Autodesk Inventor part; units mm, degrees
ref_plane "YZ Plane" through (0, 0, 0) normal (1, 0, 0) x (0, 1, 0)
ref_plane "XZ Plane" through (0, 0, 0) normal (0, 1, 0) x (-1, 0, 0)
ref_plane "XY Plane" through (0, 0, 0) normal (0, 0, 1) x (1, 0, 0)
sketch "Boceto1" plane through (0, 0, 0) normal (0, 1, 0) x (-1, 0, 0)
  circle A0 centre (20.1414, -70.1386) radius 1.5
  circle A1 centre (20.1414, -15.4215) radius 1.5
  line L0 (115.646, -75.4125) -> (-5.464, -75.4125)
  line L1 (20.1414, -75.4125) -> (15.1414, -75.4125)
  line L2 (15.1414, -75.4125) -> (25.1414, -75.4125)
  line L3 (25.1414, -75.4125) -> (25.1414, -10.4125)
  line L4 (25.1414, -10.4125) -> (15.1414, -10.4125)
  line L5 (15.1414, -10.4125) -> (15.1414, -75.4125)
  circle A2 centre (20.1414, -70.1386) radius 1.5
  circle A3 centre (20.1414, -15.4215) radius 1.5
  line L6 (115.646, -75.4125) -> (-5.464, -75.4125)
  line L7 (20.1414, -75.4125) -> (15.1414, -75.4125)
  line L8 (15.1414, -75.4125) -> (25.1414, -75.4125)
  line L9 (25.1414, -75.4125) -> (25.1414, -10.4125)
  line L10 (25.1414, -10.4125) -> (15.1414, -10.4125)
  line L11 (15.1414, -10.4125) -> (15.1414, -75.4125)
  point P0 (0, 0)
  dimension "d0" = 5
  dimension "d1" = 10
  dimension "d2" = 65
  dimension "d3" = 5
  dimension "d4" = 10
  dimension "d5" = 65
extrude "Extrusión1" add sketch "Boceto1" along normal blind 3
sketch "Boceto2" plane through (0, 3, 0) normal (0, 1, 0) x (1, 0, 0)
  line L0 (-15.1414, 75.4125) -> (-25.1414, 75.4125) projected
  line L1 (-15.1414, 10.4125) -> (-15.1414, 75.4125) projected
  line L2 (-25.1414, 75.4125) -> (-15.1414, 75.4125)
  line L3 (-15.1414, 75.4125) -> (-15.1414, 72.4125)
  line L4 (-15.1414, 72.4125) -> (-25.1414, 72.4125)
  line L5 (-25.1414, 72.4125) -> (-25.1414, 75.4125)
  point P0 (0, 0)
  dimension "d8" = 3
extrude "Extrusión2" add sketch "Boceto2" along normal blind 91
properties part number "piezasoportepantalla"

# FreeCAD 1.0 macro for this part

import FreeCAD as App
import Part
import Sketcher
from FreeCAD import Vector
Q = App.Units.Quantity

doc = App.newDocument("Part")
body = doc.addObject("PartDesign::Body", "Body")

# Sketch on XZ plane
sketch1 = body.newObject("Sketcher::SketchObject", "Sketch")
sketch1.AttachmentSupport = (doc.getObject("XZ_Plane"), [""])
sketch1.MapMode = "FlatFace"
sketch1.addGeometry([
    Part.LineSegment(Vector(-15.1, -75.4, 0), Vector(-25.1, -75.4, 0)),  # 0
    Part.LineSegment(Vector(-25.1, -75.4, 0), Vector(-25.1, -10.4, 0)),  # 1
    Part.LineSegment(Vector(-25.1, -10.4, 0), Vector(-15.1, -10.4, 0)),  # 2
    Part.LineSegment(Vector(-15.1, -10.4, 0), Vector(-15.1, -75.4, 0)),  # 3
    Part.Circle(Vector(-20.1, -70.1, 0), Vector(0, 0, 1), 1.5),  # 4
    Part.Circle(Vector(-20.1, -15.4, 0), Vector(0, 0, 1), 1.5),  # 5
], False)
sketch1.addConstraint([
    Sketcher.Constraint("Coincident", 0, 2, 1, 1),
    Sketcher.Constraint("Coincident", 1, 2, 2, 1),
    Sketcher.Constraint("Coincident", 2, 2, 3, 1),
    Sketcher.Constraint("Coincident", 3, 2, 0, 1),
    Sketcher.Constraint("Horizontal", 0),
    Sketcher.Constraint("Vertical", 1),
    Sketcher.Constraint("Horizontal", 2),
    Sketcher.Constraint("Vertical", 3),
    Sketcher.Constraint("Equal", 4, 5),
    Sketcher.Constraint("Vertical", 4, 3, 5, 3),
    Sketcher.Constraint("DistanceX", 0, 2, 0, 1, Q("10 mm")),
    Sketcher.Constraint("DistanceY", 1, 1, 1, 2, Q("65 mm")),
    Sketcher.Constraint("Diameter", 4, Q("3 mm")),
    Sketcher.Constraint("DistanceX", 0, 2, 4, 3, Q("5 mm")),
    Sketcher.Constraint("DistanceY", 4, 3, 5, 3, Q("54.717 mm")),
    Sketcher.Constraint("DistanceY", 0, 2, 4, 3, Q("5.274 mm")),
    Sketcher.Constraint("DistanceX", 4, 3, -1, 1, Q("20.1414 mm")),
    Sketcher.Constraint("DistanceY", 4, 3, -1, 1, Q("70.1386 mm")),
])
pad1 = body.newObject("PartDesign::Pad", "Pad")
pad1.Profile = sketch1
pad1.Length = 3
pad1.Reversed = True

# Sketch on XZ plane
sketch2 = body.newObject("Sketcher::SketchObject", "Sketch001")
sketch2.AttachmentSupport = (doc.getObject("XZ_Plane"), [""])
sketch2.MapMode = "FlatFace"
sketch2.AttachmentOffset = App.Placement(Vector(0, 0, -3), App.Rotation())
sketch2.addGeometry([
    Part.LineSegment(Vector(-15.1, -72.4, 0), Vector(-15.1, -75.4, 0)),
    Part.LineSegment(Vector(-15.1, -75.4, 0), Vector(-25.1, -75.4, 0)),
    Part.LineSegment(Vector(-25.1, -75.4, 0), Vector(-25.1, -72.4, 0)),
    Part.LineSegment(Vector(-25.1, -72.4, 0), Vector(-15.1, -72.4, 0)),
], False)
sketch2.addConstraint([
    Sketcher.Constraint("Coincident", 0, 2, 1, 1),
    Sketcher.Constraint("Coincident", 1, 2, 2, 1),
    Sketcher.Constraint("Coincident", 2, 2, 3, 1),
    Sketcher.Constraint("Coincident", 3, 2, 0, 1),
    Sketcher.Constraint("Vertical", 0),
    Sketcher.Constraint("Horizontal", 1),
    Sketcher.Constraint("Vertical", 2),
    Sketcher.Constraint("Horizontal", 3),
    Sketcher.Constraint("DistanceY", 0, 2, 0, 1, Q("3 mm")),
    Sketcher.Constraint("DistanceX", 1, 2, 1, 1, Q("10 mm")),
    Sketcher.Constraint("DistanceX", 0, 2, -1, 1, Q("15.1414 mm")),
    Sketcher.Constraint("DistanceY", 0, 2, -1, 1, Q("75.4125 mm")),
])
pad2 = body.newObject("PartDesign::Pad", "Pad001")
pad2.Profile = sketch2
pad2.Length = 91
pad2.Reversed = True

doc.recompute()
